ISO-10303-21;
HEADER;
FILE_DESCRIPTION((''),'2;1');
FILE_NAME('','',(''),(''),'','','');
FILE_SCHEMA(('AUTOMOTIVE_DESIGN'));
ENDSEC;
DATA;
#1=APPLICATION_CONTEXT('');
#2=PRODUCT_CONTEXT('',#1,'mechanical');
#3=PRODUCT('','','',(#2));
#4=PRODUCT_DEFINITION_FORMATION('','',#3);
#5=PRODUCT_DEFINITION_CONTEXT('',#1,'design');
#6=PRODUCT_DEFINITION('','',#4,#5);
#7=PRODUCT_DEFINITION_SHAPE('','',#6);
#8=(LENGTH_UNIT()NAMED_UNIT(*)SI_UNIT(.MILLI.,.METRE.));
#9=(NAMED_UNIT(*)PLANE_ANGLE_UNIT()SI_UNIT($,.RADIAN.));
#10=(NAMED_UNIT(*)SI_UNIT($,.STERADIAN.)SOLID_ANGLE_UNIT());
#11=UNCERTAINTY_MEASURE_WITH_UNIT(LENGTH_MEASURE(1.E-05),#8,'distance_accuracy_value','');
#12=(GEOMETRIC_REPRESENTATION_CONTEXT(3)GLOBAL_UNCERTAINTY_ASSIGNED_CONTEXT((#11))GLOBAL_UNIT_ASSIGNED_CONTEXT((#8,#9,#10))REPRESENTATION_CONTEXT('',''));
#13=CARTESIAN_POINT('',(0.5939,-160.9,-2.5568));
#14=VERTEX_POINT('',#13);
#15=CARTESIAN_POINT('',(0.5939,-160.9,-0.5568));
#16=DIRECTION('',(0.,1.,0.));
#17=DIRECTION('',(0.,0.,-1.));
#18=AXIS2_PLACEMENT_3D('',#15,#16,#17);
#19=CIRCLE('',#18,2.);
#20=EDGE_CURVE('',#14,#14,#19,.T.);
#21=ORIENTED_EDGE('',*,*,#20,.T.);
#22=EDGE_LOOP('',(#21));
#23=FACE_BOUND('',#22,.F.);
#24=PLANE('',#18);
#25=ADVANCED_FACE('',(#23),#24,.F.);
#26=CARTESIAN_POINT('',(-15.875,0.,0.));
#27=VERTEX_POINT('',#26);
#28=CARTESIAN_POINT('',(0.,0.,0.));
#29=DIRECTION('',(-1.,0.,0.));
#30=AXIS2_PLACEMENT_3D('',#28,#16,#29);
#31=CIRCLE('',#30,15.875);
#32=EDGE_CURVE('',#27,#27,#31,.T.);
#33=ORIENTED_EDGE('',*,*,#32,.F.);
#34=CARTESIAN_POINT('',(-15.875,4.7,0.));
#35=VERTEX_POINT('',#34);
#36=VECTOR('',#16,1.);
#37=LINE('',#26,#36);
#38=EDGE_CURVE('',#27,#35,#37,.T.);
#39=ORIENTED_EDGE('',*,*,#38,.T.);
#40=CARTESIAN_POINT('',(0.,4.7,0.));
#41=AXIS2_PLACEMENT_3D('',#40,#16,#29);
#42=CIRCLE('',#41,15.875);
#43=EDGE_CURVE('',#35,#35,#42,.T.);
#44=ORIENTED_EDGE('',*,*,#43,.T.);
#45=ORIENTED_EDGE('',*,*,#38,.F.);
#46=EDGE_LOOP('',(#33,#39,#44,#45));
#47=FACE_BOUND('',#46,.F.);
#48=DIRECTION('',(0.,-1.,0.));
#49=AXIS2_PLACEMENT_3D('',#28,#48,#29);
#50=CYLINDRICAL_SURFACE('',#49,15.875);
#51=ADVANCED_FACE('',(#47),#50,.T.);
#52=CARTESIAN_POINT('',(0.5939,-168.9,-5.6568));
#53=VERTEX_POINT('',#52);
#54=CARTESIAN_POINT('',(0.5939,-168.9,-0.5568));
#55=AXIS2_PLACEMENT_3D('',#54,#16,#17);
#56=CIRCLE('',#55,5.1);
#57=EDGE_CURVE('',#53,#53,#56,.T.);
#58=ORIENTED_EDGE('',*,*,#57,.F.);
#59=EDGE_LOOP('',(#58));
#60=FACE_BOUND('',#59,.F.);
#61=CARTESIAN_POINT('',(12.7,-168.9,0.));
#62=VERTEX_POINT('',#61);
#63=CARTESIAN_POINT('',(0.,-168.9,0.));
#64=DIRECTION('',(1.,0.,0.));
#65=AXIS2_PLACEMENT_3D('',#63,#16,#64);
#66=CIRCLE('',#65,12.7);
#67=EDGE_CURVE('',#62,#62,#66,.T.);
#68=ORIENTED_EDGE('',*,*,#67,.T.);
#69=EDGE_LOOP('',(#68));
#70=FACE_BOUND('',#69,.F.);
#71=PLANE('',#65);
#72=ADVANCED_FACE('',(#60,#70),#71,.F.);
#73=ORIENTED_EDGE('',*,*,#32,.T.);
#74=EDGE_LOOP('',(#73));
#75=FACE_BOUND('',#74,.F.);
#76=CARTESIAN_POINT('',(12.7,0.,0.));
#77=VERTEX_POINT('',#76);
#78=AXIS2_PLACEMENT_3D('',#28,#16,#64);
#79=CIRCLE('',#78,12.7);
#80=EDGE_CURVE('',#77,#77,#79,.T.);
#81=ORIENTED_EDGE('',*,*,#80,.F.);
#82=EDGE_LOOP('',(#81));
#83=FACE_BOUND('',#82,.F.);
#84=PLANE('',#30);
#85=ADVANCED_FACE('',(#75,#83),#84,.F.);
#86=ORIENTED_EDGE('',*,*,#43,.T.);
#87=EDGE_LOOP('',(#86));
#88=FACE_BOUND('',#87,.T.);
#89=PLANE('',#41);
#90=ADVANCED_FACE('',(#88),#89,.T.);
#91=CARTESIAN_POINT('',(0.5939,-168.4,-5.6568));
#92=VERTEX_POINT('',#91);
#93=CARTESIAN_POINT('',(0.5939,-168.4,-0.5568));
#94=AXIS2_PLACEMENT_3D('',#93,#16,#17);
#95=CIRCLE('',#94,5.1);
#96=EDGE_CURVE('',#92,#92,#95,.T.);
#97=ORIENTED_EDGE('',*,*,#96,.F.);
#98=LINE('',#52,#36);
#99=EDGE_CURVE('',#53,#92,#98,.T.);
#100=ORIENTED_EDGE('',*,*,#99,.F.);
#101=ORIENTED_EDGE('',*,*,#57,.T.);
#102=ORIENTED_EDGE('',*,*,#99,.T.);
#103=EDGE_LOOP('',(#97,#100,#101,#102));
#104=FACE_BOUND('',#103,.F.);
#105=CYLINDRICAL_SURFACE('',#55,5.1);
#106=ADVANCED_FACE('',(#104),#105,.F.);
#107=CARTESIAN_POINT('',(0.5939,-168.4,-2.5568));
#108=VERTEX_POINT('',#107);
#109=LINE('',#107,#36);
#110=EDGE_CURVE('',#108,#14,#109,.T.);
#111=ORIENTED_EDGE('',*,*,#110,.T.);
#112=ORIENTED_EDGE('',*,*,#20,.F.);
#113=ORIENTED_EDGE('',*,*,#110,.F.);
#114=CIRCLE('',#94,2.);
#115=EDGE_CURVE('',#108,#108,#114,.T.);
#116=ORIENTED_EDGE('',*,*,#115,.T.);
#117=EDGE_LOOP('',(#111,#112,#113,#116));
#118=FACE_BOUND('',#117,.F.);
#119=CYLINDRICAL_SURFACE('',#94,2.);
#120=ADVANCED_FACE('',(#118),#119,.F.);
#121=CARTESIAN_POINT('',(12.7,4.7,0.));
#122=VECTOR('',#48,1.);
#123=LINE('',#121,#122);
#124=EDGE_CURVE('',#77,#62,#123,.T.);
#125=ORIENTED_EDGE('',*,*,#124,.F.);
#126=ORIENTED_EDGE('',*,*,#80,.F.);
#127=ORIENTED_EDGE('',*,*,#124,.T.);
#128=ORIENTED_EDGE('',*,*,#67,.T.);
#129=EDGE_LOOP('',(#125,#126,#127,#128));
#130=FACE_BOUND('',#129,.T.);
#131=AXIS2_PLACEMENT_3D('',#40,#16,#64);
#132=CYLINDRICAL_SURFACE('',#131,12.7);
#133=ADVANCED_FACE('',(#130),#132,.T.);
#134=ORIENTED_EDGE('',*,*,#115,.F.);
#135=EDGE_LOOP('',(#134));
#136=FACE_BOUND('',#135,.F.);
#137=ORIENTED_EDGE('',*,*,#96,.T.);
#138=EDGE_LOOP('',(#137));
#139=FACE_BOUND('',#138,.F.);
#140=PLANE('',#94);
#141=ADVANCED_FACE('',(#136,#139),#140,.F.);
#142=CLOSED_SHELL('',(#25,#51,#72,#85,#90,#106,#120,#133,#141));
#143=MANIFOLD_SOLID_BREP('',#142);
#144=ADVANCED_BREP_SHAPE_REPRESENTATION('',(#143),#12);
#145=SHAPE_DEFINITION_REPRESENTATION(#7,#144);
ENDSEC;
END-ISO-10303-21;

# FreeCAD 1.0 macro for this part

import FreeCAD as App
import Part
import Sketcher
from FreeCAD import Vector
Q = App.Units.Quantity

doc = App.newDocument("Part")
params = doc.addObject("Spreadsheet::Sheet", "Params")
for row, (alias, value) in enumerate([
    ("sketch1_diameter", "25.4 mm"),
    ("sketch1_diameter2", "31.75 mm"),
    ("pad1_length", "4.7 mm"),
    ("sketch2_diameter", "25.4 mm"),
    ("pad2_length", "173.6 mm"),
    ("sketch3_diameter", "4 mm"),
    ("hole_diameter", "4 mm"),
    ("hole_depth", "8 mm"),
    ("hole_cbore_diameter", "10.2 mm"),
    ("hole_cbore_depth", "0.5 mm"),
], start=1):
    params.set(f"A{row}", alias)
    params.set(f"B{row}", "=" + value)
    params.setAlias(f"B{row}", alias)

body = doc.addObject("PartDesign::Body", "Body")

sketch1 = body.newObject("Sketcher::SketchObject", "Sketch")
sketch1.AttachmentSupport = (doc.getObject("XZ_Plane"), [""])
sketch1.MapMode = "FlatFace"
sketch1.addGeometry([
    Part.Circle(Vector(0, 0, 0), Vector(0, 0, 1), 15.875),
    Part.Circle(Vector(0, 0, 0), Vector(0, 0, 1), 12.7),
], False)
sketch1.addConstraint([
    Sketcher.Constraint("Coincident", 0, 3, -1, 1),
    Sketcher.Constraint("Coincident", 1, 3, -1, 1),
    Sketcher.Constraint("Diameter", 1, Q("25.4 mm")),
    Sketcher.Constraint("Diameter", 0, Q("31.75 mm")),
])
sketch1.setExpression("Constraints[2]", "Params.sketch1_diameter")
sketch1.setExpression("Constraints[3]", "Params.sketch1_diameter2")
pad1 = body.newObject("PartDesign::Pad", "Pad")
pad1.Profile = sketch1
pad1.setExpression("Length", "Params.pad1_length")
pad1.Reversed = True

sketch2 = body.newObject("Sketcher::SketchObject", "Sketch001")
sketch2.AttachmentSupport = (doc.getObject("XZ_Plane"), [""])
sketch2.MapMode = "FlatFace"
sketch2.AttachmentOffset = App.Placement(Vector(0, 0, -4.7), App.Rotation())
sketch2.addGeometry(Part.Circle(Vector(0, 0, 0), Vector(0, 0, 1), 12.7), False)
sketch2.addConstraint([
    Sketcher.Constraint("Coincident", 0, 3, -1, 1),
    Sketcher.Constraint("Diameter", 0, Q("25.4 mm")),
])
sketch2.setExpression("Constraints[1]", "Params.sketch2_diameter")
pad2 = body.newObject("PartDesign::Pad", "Pad001")
pad2.Profile = sketch2
pad2.setExpression("Length", "Params.pad2_length")

sketch3 = body.newObject("Sketcher::SketchObject", "Sketch002")
sketch3.AttachmentSupport = (doc.getObject("XZ_Plane"), [""])
sketch3.MapMode = "FlatFace"
sketch3.AttachmentOffset = App.Placement(Vector(0, 0, 168.9), App.Rotation())
sketch3.addGeometry(Part.Circle(Vector(0.5939, -0.5568, 0), Vector(0, 0, 1), 2), False)
sketch3.addConstraint([
    Sketcher.Constraint("Diameter", 0, Q("4 mm")),
    Sketcher.Constraint("DistanceX", -1, 1, 0, 3, Q("0.594 mm")),
    Sketcher.Constraint("DistanceY", 0, 3, -1, 1, Q("0.5568 mm")),
])
sketch3.setExpression("Constraints[0]", "Params.sketch3_diameter")
doc.recompute()
hole = body.newObject("PartDesign::Hole", "Hole")
hole.Profile = sketch3
hole.ThreadType = "None"
hole.setExpression("Diameter", "Params.hole_diameter")
hole.DepthType = "Dimension"
hole.setExpression("Depth", "Params.hole_depth")
hole.DrillPoint = "Flat"
hole.HoleCutType = "Counterbore"
hole.setExpression("HoleCutDiameter", "Params.hole_cbore_diameter")
hole.setExpression("HoleCutDepth", "Params.hole_cbore_depth")

doc.recompute()
